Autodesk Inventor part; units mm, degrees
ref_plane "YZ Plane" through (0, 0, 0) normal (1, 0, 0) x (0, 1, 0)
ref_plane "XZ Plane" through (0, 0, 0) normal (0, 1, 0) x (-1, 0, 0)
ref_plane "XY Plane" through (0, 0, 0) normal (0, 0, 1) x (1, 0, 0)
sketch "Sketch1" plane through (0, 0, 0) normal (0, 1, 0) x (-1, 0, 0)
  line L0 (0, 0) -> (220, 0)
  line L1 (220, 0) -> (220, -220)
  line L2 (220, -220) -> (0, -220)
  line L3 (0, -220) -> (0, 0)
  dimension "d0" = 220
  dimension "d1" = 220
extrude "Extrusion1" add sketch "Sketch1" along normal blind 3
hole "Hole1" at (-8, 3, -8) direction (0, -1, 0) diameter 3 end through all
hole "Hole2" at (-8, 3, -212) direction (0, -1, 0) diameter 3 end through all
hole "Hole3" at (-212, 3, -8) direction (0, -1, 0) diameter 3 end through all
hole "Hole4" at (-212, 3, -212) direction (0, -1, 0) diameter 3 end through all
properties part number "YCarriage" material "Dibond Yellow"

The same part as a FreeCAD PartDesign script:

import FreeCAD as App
import Part
import Sketcher

V = App.Vector
Q = App.Units.Quantity

doc = App.newDocument("Part")
body = doc.addObject("PartDesign::Body", "Body")

sketch1 = body.newObject("Sketcher::SketchObject", "Sketch")
sketch1.AttachmentSupport = (doc.getObject("XZ_Plane"), [""])
sketch1.MapMode = "FlatFace"
sketch1.addGeometry([
    Part.LineSegment(V(-220, 0, 0), V(0, 0, 0)),
    Part.LineSegment(V(0, 0, 0), V(0, -220, 0)),
    Part.LineSegment(V(0, -220, 0), V(-220, -220, 0)),
    Part.LineSegment(V(-220, -220, 0), V(-220, 0, 0)),
], False)
sketch1.addConstraint([
    Sketcher.Constraint("Coincident", 0, 2, 1, 1),
    Sketcher.Constraint("Coincident", 1, 2, 2, 1),
    Sketcher.Constraint("Coincident", 2, 2, 3, 1),
    Sketcher.Constraint("Coincident", 3, 2, 0, 1),
    Sketcher.Constraint("Horizontal", 0),
    Sketcher.Constraint("Vertical", 1),
    Sketcher.Constraint("Horizontal", 2),
    Sketcher.Constraint("Vertical", 3),
    Sketcher.Constraint("Coincident", 0, 2, -1, 1),
    Sketcher.Constraint("Equal", 2, 1),
    Sketcher.Constraint("DistanceX", 0, 1, 0, 2, Q("220 mm")),
])
pad1 = body.newObject("PartDesign::Pad", "Pad")
pad1.Profile = sketch1
pad1.Length = 3
pad1.Reversed = True

sketch2 = body.newObject("Sketcher::SketchObject", "Sketch001")
sketch2.AttachmentSupport = (doc.getObject("XZ_Plane"), [""])
sketch2.MapMode = "FlatFace"
sketch2.AttachmentOffset = App.Placement(V(0, 0, -3), App.Rotation())
sketch2.addGeometry(Part.Circle(V(-8, -8, 0), V(0, 0, 1), 1.5), False)
sketch2.addConstraint([
    Sketcher.Constraint("Diameter", 0, Q("3 mm")),
    Sketcher.Constraint("DistanceX", 0, 3, -1, 1, Q("8 mm")),
    Sketcher.Constraint("DistanceY", 0, 3, -1, 1, Q("8 mm")),
])
doc.recompute()
hole = body.newObject("PartDesign::Hole", "Hole")
hole.Profile = sketch2
hole.ThreadType = "None"
hole.Diameter = 3
hole.DepthType = "ThroughAll"
hole.Reversed = True

sketch3 = body.newObject("Sketcher::SketchObject", "Sketch002")
sketch3.AttachmentSupport = (doc.getObject("XZ_Plane"), [""])
sketch3.MapMode = "FlatFace"
sketch3.AttachmentOffset = App.Placement(V(0, 0, -3), App.Rotation())
sketch3.addGeometry(Part.Circle(V(-8, -212, 0), V(0, 0, 1), 1.5), False)
sketch3.addConstraint([
    Sketcher.Constraint("Diameter", 0, Q("3 mm")),
    Sketcher.Constraint("DistanceX", 0, 3, -1, 1, Q("8 mm")),
    Sketcher.Constraint("DistanceY", 0, 3, -1, 1, Q("212 mm")),
])
doc.recompute()
hole2 = body.newObject("PartDesign::Hole", "Hole001")
hole2.Profile = sketch3
hole2.ThreadType = "None"
hole2.Diameter = 3
hole2.DepthType = "ThroughAll"
hole2.Reversed = True

sketch4 = body.newObject("Sketcher::SketchObject", "Sketch003")
sketch4.AttachmentSupport = (doc.getObject("XZ_Plane"), [""])
sketch4.MapMode = "FlatFace"
sketch4.AttachmentOffset = App.Placement(V(0, 0, -3), App.Rotation())
sketch4.addGeometry(Part.Circle(V(-212, -8, 0), V(0, 0, 1), 1.5), False)
sketch4.addConstraint([
    Sketcher.Constraint("Diameter", 0, Q("3 mm")),
    Sketcher.Constraint("DistanceX", 0, 3, -1, 1, Q("212 mm")),
    Sketcher.Constraint("DistanceY", 0, 3, -1, 1, Q("8 mm")),
])
doc.recompute()
hole3 = body.newObject("PartDesign::Hole", "Hole002")
hole3.Profile = sketch4
hole3.ThreadType = "None"
hole3.Diameter = 3
hole3.DepthType = "ThroughAll"
hole3.Reversed = True

sketch5 = body.newObject("Sketcher::SketchObject", "Sketch004")
sketch5.AttachmentSupport = (doc.getObject("XZ_Plane"), [""])
sketch5.MapMode = "FlatFace"
sketch5.AttachmentOffset = App.Placement(V(0, 0, -3), App.Rotation())
sketch5.addGeometry(Part.Circle(V(-212, -212, 0), V(0, 0, 1), 1.5), False)
sketch5.addConstraint([
    Sketcher.Constraint("Diameter", 0, Q("3 mm")),
    Sketcher.Constraint("DistanceX", 0, 3, -1, 1, Q("212 mm")),
    Sketcher.Constraint("DistanceY", 0, 3, -1, 1, Q("212 mm")),
])
doc.recompute()
hole4 = body.newObject("PartDesign::Hole", "Hole003")
hole4.Profile = sketch5
hole4.ThreadType = "None"
hole4.Diameter = 3
hole4.DepthType = "ThroughAll"
hole4.Reversed = True

doc.recompute()
